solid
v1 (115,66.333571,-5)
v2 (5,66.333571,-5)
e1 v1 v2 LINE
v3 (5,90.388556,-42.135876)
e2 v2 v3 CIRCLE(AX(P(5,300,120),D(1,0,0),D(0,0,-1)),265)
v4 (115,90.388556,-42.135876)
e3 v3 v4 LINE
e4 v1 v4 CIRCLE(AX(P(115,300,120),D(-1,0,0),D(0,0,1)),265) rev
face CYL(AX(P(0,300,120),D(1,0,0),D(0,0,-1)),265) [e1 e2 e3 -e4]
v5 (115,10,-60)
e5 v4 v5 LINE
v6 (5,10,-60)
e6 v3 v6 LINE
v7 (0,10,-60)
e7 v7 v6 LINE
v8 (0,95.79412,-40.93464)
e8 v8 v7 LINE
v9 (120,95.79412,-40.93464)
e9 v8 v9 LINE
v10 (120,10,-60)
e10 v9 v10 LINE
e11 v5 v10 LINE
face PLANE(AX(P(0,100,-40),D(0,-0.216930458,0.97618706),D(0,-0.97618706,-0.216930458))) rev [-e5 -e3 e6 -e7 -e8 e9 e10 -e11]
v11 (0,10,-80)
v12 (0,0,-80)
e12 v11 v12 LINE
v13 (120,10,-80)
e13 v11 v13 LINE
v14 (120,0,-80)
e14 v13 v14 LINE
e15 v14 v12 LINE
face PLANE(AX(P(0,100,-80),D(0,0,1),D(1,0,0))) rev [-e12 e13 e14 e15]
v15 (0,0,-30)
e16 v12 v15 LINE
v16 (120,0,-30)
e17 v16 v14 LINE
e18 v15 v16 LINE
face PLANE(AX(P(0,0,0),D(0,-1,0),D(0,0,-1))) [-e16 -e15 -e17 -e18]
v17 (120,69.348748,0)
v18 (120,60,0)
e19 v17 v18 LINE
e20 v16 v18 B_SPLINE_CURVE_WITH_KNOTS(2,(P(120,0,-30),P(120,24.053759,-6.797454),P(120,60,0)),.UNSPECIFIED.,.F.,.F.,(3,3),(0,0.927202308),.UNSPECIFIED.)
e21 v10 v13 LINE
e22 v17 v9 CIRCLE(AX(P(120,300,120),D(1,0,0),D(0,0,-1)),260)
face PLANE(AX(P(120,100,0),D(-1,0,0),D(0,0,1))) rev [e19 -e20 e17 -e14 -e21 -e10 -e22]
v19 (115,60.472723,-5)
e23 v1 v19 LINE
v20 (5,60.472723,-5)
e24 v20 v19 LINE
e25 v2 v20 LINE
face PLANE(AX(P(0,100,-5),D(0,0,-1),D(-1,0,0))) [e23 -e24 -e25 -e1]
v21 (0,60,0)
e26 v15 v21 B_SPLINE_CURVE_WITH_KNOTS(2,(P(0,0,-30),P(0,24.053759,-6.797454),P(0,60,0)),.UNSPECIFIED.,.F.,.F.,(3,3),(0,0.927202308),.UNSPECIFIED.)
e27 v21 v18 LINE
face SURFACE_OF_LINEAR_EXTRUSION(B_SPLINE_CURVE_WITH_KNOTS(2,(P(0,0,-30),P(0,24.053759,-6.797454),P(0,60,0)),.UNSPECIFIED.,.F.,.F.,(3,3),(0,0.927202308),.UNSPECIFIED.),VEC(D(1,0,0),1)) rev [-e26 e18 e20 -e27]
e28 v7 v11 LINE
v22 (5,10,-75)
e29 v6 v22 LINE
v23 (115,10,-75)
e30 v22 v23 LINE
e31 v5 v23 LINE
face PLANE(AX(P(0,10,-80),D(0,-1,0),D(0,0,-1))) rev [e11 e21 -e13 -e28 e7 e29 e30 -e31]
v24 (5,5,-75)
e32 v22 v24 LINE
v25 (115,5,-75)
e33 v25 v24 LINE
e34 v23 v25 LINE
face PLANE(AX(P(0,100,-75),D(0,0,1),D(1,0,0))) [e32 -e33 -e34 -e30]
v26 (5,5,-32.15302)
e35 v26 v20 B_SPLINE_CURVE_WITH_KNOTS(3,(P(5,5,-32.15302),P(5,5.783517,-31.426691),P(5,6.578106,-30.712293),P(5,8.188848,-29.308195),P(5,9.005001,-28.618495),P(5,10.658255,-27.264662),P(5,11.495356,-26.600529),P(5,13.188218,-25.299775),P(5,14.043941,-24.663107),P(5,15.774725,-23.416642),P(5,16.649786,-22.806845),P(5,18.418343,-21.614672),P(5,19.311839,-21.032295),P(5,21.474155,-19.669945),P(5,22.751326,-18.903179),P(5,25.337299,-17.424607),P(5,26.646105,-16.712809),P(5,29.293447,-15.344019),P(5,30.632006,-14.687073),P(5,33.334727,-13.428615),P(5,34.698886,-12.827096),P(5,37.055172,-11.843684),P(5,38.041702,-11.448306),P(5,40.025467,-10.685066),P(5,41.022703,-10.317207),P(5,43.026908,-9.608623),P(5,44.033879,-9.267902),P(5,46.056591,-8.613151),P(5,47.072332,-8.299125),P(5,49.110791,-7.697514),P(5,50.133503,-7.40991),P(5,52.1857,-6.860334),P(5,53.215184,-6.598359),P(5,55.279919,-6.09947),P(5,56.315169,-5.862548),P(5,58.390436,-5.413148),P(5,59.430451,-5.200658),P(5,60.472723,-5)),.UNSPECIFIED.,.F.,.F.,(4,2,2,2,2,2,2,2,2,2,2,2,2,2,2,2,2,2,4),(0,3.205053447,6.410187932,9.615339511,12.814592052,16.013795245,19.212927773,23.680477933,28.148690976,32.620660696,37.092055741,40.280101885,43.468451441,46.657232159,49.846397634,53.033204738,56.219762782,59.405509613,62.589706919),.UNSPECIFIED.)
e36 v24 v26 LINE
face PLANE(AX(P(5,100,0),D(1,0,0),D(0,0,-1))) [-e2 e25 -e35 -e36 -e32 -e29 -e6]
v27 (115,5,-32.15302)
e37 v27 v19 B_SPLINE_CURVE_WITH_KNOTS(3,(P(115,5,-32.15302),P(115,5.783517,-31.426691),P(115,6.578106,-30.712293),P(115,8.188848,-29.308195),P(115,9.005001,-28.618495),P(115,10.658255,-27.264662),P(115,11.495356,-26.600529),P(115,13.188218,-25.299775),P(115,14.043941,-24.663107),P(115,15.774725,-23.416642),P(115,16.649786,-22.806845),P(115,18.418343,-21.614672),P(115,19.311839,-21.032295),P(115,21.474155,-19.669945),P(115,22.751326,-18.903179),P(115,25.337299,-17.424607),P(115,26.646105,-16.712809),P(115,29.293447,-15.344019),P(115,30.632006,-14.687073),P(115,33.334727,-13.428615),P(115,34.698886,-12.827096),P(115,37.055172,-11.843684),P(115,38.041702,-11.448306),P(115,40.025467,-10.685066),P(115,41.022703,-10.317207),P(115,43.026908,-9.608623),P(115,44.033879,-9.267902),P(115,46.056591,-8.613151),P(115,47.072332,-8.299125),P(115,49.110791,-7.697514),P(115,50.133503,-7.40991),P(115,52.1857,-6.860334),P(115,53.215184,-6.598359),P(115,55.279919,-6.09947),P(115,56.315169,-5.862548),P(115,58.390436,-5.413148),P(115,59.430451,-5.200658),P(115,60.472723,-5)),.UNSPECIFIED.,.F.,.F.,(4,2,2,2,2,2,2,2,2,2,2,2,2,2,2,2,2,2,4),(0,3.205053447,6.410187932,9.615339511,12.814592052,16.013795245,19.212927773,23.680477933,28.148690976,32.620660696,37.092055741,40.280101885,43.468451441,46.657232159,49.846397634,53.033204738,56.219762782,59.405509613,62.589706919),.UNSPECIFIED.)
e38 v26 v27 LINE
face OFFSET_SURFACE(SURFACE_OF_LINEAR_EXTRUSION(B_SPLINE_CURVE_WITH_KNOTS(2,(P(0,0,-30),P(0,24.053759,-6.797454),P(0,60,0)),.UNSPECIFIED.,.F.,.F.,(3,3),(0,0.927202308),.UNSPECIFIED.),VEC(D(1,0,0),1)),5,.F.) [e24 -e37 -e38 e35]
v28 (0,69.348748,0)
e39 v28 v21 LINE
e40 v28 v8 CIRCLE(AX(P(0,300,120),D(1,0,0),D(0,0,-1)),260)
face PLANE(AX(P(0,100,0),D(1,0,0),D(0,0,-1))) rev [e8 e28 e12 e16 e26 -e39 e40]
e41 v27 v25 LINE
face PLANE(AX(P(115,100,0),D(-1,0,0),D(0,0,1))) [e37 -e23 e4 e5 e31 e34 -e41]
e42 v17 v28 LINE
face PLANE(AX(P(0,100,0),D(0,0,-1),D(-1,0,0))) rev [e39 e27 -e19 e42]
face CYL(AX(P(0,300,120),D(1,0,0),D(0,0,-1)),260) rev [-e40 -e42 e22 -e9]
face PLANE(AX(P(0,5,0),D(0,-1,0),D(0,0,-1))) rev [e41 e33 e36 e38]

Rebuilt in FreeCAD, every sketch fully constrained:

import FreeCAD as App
import Part
import Sketcher

V = App.Vector
Q = App.Units.Quantity


def faces_at(feature, points):
    """Names of the faces that lie closest to the given points."""
    faces = feature.Shape.Faces
    near = lambda p: min(range(len(faces)), key=lambda i: faces[i].distToShape(Part.Vertex(*p))[0])
    return sorted({f"Face{near(p) + 1}" for p in points})

doc = App.newDocument("Part")
body = doc.addObject("PartDesign::Body", "Body")

# Sketch on XZ plane
sketch1 = body.newObject("Sketcher::SketchObject", "Sketch")
sketch1.AttachmentSupport = (doc.getObject("XZ_Plane"), [""])
sketch1.MapMode = "FlatFace"
sketch1.addGeometry(Part.LineSegment(V(0, -80, 0), V(0, 0, 0)), False)
sketch1.addGeometry(Part.LineSegment(V(0, 0, 0), V(120, 0, 0)), False)
sketch1.addGeometry(Part.LineSegment(V(120, 0, 0), V(120, -80, 0)), False)
sketch1.addGeometry(Part.LineSegment(V(120, -80, 0), V(0, -80, 0)), False)
sketch1.addConstraint(Sketcher.Constraint("Coincident", 0, 2, 1, 1))
sketch1.addConstraint(Sketcher.Constraint("Coincident", 1, 2, 2, 1))
sketch1.addConstraint(Sketcher.Constraint("Coincident", 2, 2, 3, 1))
sketch1.addConstraint(Sketcher.Constraint("Coincident", 3, 2, 0, 1))
sketch1.addConstraint(Sketcher.Constraint("Vertical", 0))
sketch1.addConstraint(Sketcher.Constraint("Horizontal", 1))
sketch1.addConstraint(Sketcher.Constraint("Vertical", 2))
sketch1.addConstraint(Sketcher.Constraint("Horizontal", 3))
sketch1.addConstraint(Sketcher.Constraint("Coincident", 0, 2, -1, 1))
sketch1.addConstraint(Sketcher.Constraint("DistanceX", 1, 1, 1, 2, Q("120 mm")))
sketch1.addConstraint(Sketcher.Constraint("DistanceY", 0, 1, 0, 2, Q("80 mm")))
pad1 = body.newObject("PartDesign::Pad", "Pad")
pad1.Profile = sketch1
pad1.Length = 100
pad1.Reversed = True

# Sketch on YZ plane
sketch2 = body.newObject("Sketcher::SketchObject", "Sketch001")
sketch2.AttachmentSupport = (doc.getObject("YZ_Plane"), [""])
sketch2.MapMode = "FlatFace"
sketch2.AttachmentOffset = App.Placement(V(0, 0, 120), App.Rotation())
sketch2.addGeometry(Part.LineSegment(V(10, -60, 0), V(10, -80, 0)), False)
sketch2.addGeometry(Part.LineSegment(V(10, -80, 0), V(100, -80, 0)), False)
sketch2.addGeometry(Part.LineSegment(V(100, -80, 0), V(100, -40, 0)), False)
sketch2.addGeometry(Part.LineSegment(V(100, -40, 0), V(10, -60, 0)), False)
sketch2.addGeometry(Part.LineSegment(V(60, 0, 0), V(0, 0, 0)), False)
sketch2.addGeometry(Part.LineSegment(V(0, 0, 0), V(0, -30, 0)), False)
sketch2.addGeometry(Part.BSplineCurve([V(60, 0, 0), V(24.053759, -6.797454, 0), V(0, -30, 0)], [3, 3], [0, 0.927202308], False, 2, [1, 1, 1], False), False)
sketch2.addConstraint(Sketcher.Constraint("Block", 6))
sketch2.addConstraint(Sketcher.Constraint("Coincident", 0, 2, 1, 1))
sketch2.addConstraint(Sketcher.Constraint("Coincident", 1, 2, 2, 1))
sketch2.addConstraint(Sketcher.Constraint("Coincident", 2, 2, 3, 1))
sketch2.addConstraint(Sketcher.Constraint("Coincident", 3, 2, 0, 1))
sketch2.addConstraint(Sketcher.Constraint("Coincident", 4, 2, 5, 1))
sketch2.addConstraint(Sketcher.Constraint("Coincident", 5, 2, 6, 2))
sketch2.addConstraint(Sketcher.Constraint("Coincident", 6, 1, 4, 1))
sketch2.addConstraint(Sketcher.Constraint("Vertical", 0))
sketch2.addConstraint(Sketcher.Constraint("Horizontal", 1))
sketch2.addConstraint(Sketcher.Constraint("Vertical", 2))
sketch2.addConstraint(Sketcher.Constraint("Horizontal", 4))
sketch2.addConstraint(Sketcher.Constraint("Vertical", 5))
sketch2.addConstraint(Sketcher.Constraint("DistanceX", 1, 1, 1, 2, Q("90 mm")))
sketch2.addConstraint(Sketcher.Constraint("DistanceY", 0, 2, 0, 1, Q("20 mm")))
sketch2.addConstraint(Sketcher.Constraint("DistanceY", 2, 1, 2, 2, Q("40 mm")))
sketch2.addConstraint(Sketcher.Constraint("DistanceX", -1, 1, 0, 2, Q("10 mm")))
sketch2.addConstraint(Sketcher.Constraint("DistanceY", 0, 2, -1, 1, Q("80 mm")))
pocket1 = body.newObject("PartDesign::Pocket", "Pocket")
pocket1.Profile = sketch2
pocket1.Type = "ThroughAll"

# Sketch on YZ plane
sketch3 = body.newObject("Sketcher::SketchObject", "Sketch002")
sketch3.AttachmentSupport = (doc.getObject("YZ_Plane"), [""])
sketch3.MapMode = "FlatFace"
sketch3.AttachmentOffset = App.Placement(V(0, 0, 120), App.Rotation())
sketch3.addGeometry(Part.Circle(V(300, 120, 0), V(0, 0, 1), 260), False)
sketch3.addConstraint(Sketcher.Constraint("Diameter", 0, Q("520 mm")))
sketch3.addConstraint(Sketcher.Constraint("DistanceX", -1, 1, 0, 3, Q("300 mm")))
sketch3.addConstraint(Sketcher.Constraint("DistanceY", -1, 1, 0, 3, Q("120 mm")))
pocket2 = body.newObject("PartDesign::Pocket", "Pocket001")
pocket2.Profile = sketch3
pocket2.Type = "ThroughAll"
doc.recompute()

thickness = body.newObject("PartDesign::Thickness", "Thickness")
thickness.Base = (pocket2, faces_at(pocket2, [(60, 10, -70), (60, 52.897, -50.467)]))
thickness.Value = 5
thickness.Reversed = True
thickness.Join = "Intersection"

doc.recompute()
